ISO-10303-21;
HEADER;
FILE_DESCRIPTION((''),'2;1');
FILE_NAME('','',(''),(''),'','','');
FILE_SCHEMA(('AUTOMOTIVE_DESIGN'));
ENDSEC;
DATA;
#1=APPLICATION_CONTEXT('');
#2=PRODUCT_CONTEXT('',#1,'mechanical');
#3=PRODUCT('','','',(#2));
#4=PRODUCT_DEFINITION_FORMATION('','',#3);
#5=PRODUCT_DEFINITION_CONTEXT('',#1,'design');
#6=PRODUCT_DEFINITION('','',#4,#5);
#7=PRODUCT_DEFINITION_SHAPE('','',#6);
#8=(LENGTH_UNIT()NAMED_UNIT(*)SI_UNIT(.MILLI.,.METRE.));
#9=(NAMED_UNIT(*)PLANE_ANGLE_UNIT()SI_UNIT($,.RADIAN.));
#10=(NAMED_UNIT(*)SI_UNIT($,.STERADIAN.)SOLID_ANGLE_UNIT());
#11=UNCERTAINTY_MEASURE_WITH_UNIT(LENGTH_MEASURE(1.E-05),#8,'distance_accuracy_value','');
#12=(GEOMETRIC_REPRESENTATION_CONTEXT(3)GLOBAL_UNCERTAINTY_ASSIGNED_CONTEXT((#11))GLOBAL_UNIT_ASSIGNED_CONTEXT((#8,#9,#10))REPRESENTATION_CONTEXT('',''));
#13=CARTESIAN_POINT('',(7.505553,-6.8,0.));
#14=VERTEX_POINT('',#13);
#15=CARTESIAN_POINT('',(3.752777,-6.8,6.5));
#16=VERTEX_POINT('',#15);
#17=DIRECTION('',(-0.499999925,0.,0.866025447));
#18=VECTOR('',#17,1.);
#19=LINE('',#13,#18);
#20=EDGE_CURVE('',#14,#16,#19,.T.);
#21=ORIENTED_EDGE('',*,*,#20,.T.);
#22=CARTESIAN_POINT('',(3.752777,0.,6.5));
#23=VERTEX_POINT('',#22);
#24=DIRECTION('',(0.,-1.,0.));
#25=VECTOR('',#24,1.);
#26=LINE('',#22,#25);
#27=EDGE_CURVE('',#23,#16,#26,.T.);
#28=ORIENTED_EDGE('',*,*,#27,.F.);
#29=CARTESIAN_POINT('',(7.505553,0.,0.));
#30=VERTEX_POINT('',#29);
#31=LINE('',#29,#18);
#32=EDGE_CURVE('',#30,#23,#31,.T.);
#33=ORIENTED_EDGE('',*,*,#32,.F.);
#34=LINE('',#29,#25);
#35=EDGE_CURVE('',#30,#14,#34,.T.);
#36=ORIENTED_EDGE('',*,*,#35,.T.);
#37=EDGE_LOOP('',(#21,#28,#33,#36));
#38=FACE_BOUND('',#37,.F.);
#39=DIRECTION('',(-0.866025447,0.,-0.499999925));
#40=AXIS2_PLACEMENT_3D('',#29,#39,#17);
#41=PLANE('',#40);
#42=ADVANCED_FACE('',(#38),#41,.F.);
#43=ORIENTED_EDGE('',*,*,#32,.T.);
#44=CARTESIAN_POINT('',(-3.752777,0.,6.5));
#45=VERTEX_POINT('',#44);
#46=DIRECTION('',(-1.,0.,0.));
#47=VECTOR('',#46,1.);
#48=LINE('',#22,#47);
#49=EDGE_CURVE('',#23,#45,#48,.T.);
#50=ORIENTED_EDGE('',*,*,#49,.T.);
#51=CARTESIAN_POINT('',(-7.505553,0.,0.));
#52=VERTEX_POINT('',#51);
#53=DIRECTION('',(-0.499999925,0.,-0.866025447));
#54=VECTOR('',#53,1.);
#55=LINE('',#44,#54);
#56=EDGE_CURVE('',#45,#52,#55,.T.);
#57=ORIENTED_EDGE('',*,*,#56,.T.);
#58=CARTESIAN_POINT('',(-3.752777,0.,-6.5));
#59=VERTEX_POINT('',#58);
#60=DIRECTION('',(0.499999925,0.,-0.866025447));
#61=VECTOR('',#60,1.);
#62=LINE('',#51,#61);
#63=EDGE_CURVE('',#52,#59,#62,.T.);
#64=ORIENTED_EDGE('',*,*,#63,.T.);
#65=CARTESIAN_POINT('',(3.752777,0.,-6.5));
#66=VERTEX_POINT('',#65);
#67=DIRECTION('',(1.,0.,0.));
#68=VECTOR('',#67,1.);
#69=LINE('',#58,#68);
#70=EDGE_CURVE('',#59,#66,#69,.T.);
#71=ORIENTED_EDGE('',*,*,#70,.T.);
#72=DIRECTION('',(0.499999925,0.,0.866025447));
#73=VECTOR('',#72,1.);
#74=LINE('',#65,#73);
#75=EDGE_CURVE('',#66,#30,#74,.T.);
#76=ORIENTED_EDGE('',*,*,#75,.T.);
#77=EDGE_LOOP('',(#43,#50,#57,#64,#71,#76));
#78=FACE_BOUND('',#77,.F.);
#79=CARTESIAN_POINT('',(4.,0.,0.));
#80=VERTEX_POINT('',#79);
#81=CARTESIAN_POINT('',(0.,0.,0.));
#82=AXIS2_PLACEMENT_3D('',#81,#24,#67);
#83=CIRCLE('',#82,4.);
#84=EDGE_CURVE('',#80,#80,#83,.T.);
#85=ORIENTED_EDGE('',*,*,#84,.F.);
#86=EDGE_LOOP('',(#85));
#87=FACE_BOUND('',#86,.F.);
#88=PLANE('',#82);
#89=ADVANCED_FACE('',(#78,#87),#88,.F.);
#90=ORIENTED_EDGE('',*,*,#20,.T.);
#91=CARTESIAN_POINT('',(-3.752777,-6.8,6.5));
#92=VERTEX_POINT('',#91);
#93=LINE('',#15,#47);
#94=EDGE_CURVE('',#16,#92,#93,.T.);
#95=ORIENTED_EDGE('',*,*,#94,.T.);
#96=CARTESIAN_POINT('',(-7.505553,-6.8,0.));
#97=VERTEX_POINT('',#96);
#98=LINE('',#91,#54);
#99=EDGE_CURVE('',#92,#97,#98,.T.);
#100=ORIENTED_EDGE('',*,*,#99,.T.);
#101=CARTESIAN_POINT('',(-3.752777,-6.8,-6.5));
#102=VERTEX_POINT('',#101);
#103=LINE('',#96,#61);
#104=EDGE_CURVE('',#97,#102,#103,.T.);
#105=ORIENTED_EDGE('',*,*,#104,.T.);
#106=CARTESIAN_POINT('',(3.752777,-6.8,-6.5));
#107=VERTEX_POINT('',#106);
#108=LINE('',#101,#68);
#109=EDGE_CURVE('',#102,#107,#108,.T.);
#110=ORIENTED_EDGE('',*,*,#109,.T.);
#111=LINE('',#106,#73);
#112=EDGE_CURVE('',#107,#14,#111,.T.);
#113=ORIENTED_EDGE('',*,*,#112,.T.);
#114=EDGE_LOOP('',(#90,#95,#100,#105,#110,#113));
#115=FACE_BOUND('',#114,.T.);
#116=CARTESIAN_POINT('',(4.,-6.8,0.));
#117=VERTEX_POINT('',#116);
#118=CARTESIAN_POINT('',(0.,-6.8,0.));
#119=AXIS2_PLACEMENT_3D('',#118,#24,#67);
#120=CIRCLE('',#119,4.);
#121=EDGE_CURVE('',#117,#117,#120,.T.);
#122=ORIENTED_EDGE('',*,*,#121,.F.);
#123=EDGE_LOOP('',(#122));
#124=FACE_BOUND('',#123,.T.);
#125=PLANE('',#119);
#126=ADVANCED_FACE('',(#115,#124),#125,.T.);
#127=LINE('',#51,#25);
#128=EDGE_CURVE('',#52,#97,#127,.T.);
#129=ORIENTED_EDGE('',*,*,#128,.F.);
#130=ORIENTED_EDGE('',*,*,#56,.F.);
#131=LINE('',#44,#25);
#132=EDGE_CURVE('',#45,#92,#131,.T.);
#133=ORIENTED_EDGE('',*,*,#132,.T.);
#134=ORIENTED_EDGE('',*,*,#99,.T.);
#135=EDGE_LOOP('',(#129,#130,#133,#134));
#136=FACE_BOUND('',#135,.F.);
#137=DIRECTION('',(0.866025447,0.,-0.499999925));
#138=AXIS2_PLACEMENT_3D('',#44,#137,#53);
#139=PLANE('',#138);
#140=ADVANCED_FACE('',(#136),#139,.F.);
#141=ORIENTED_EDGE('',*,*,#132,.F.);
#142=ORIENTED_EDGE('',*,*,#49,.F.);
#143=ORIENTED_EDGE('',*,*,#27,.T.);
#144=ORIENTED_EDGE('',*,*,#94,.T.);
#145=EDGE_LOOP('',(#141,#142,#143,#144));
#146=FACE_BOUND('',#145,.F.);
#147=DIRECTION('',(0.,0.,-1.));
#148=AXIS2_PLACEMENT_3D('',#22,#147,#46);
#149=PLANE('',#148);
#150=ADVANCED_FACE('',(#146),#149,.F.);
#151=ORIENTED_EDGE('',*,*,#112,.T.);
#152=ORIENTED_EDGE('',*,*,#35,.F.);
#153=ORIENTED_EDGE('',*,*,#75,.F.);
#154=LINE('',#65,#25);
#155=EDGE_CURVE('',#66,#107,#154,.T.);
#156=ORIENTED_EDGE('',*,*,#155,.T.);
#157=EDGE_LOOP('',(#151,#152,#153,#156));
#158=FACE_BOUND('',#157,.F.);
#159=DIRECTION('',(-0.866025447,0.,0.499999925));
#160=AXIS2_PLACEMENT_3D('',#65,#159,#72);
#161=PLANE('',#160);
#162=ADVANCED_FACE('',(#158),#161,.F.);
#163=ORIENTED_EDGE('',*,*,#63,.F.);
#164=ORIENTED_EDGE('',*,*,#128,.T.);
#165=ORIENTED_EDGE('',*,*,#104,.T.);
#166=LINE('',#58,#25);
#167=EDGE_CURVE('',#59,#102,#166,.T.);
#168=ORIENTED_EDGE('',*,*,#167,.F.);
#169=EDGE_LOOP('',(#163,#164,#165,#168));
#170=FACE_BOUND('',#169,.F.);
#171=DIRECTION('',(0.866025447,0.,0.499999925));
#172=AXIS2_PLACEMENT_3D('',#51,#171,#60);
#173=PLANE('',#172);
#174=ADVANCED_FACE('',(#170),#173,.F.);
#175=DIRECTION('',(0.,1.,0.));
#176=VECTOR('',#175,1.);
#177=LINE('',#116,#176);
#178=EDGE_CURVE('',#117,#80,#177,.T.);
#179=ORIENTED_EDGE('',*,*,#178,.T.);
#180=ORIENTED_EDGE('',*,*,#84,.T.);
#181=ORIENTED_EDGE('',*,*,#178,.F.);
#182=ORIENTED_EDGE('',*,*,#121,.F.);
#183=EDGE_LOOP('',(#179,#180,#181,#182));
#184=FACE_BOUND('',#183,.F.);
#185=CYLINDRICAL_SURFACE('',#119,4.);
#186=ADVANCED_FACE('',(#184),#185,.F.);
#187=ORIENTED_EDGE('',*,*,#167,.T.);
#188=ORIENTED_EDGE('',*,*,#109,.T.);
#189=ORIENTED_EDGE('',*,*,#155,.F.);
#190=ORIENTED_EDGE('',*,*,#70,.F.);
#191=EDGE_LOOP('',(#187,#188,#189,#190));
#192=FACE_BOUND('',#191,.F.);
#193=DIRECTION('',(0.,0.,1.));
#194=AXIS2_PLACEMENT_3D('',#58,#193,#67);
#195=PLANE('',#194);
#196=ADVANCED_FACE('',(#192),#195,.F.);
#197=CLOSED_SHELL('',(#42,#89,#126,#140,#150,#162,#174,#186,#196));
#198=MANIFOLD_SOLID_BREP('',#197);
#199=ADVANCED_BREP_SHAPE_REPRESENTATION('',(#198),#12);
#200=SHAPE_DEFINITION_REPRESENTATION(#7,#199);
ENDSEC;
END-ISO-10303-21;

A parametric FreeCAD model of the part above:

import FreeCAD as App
import Part
import Sketcher
from FreeCAD import Vector
Q = App.Units.Quantity


def add_polygon(sketch, points):
    """Adds a closed chain of lines whose ends are joined by coincident constraints."""
    first, n = sketch.GeometryCount, len(points)
    for a, b in zip(points, points[1:] + points[:1]):
        sketch.addGeometry(Part.LineSegment(App.Vector(*a, 0), App.Vector(*b, 0)), False)
    for i in range(n):
        sketch.addConstraint(Sketcher.Constraint("Coincident", first + i, 2, first + (i + 1) % n, 1))

doc = App.newDocument("Part")
params = doc.addObject("Spreadsheet::Sheet", "Params")
for row, (alias, value) in enumerate([
    ("pad1_length", "6.8 mm"),
    ("sketch2_diameter", "8 mm"),
], start=1):
    params.set(f"A{row}", alias)
    params.set(f"B{row}", "=" + value)
    params.setAlias(f"B{row}", alias)

body = doc.addObject("PartDesign::Body", "Body")

# Sketch on XZ plane
sketch1 = body.newObject("Sketcher::SketchObject", "Sketch")
sketch1.AttachmentSupport = (doc.getObject("XZ_Plane"), [""])
sketch1.MapMode = "FlatFace"
add_polygon(sketch1, [(3.752777, -6.5), (7.505553, 0), (3.752777, 6.5), (-3.752777, 6.5), (-7.505553, 0), (-3.752777, -6.5)])  # lines 0-5
sketch1.addConstraint(Sketcher.Constraint("Horizontal", 2))
sketch1.addConstraint(Sketcher.Constraint("Horizontal", 5))
sketch1.addConstraint(Sketcher.Constraint("Symmetric", 0, 2, 3, 2, -1, 1))
sketch1.addConstraint(Sketcher.Constraint("Symmetric", 1, 2, 4, 2, -1, 1))
sketch1.addConstraint(Sketcher.Constraint("PointOnObject", 0, 2, -1))
sketch1.addConstraint(Sketcher.Constraint("Parallel", 0, 3))
sketch1.addConstraint(Sketcher.Constraint("Vertical", 2, 2, 4, 2))
sketch1.addConstraint(Sketcher.Constraint("Angle", 0, Q("60.000005 deg")))
sketch1.addConstraint(Sketcher.Constraint("DistanceY", 4, 2, 2, 2, 13.0))
sketch1.addConstraint(Sketcher.Constraint("DistanceX", 2, 2, 2, 1, 7.505554))
pad1 = body.newObject("PartDesign::Pad", "Pad")
pad1.Profile = sketch1
pad1.setExpression("Length", "Params.pad1_length")

# Sketch on XZ plane
sketch2 = body.newObject("Sketcher::SketchObject", "Sketch001")
sketch2.AttachmentSupport = (doc.getObject("XZ_Plane"), [""])
sketch2.MapMode = "FlatFace"
sketch2.AttachmentOffset = App.Placement(Vector(0, 0, 6.8), App.Rotation())
sketch2.addGeometry(Part.Circle(Vector(0, 0, 0), Vector(0, 0, 1), 4), False)
sketch2.addConstraint(Sketcher.Constraint("Coincident", 0, 3, -1, 1))
sketch2.addConstraint(Sketcher.Constraint("Diameter", 0, 8.0))
sketch2.setExpression("Constraints[1]", "Params.sketch2_diameter")
pocket1 = body.newObject("PartDesign::Pocket", "Pocket")
pocket1.Profile = sketch2
pocket1.Type = "ThroughAll"

doc.recompute()
